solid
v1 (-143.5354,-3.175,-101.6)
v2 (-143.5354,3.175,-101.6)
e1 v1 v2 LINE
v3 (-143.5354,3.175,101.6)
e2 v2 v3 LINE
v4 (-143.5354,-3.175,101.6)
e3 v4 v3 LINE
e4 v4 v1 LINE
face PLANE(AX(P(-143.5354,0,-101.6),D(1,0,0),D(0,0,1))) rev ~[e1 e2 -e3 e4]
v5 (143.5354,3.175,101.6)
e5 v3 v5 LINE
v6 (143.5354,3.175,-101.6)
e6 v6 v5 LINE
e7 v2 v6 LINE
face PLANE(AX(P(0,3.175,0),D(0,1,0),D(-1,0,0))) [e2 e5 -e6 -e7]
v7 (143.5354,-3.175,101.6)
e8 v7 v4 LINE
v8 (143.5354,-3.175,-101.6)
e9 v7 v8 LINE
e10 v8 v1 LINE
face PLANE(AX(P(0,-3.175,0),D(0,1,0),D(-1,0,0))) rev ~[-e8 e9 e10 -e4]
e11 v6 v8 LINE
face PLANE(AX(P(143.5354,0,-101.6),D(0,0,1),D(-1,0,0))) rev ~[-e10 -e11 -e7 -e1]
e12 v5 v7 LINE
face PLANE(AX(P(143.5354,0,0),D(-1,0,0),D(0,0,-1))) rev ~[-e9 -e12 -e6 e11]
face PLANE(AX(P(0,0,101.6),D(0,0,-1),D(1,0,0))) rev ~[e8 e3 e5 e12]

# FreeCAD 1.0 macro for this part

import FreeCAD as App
import Part
import Sketcher

V = App.Vector
Q = App.Units.Quantity


def add_polygon(sketch, points):
    """Adds a closed chain of lines whose ends are joined by coincident constraints."""
    first, n = sketch.GeometryCount, len(points)
    for a, b in zip(points, points[1:] + points[:1]):
        sketch.addGeometry(Part.LineSegment(App.Vector(*a, 0), App.Vector(*b, 0)), False)
    for i in range(n):
        sketch.addConstraint(Sketcher.Constraint("Coincident", first + i, 2, first + (i + 1) % n, 1))

doc = App.newDocument("Part")
body = doc.addObject("PartDesign::Body", "Body")

# Sketch on XZ plane
sketch1 = doc.addObject("Sketcher::SketchObject", "Sketch")
body.addObject(sketch1)
sketch1.AttachmentSupport = (doc.XZ_Plane, [""])
sketch1.MapMode = "FlatFace"
add_polygon(sketch1, [(143.5354, -101.6), (-143.5354, -101.6), (-143.5354, 101.6), (143.5354, 101.6)])  # lines 0-3
sketch1.addConstraint(Sketcher.Constraint("Horizontal", 0))
sketch1.addConstraint(Sketcher.Constraint("Vertical", 1))
sketch1.addConstraint(Sketcher.Constraint("Horizontal", 2))
sketch1.addConstraint(Sketcher.Constraint("Vertical", 3))
sketch1.addConstraint(Sketcher.Constraint("Symmetric", 0, 2, 2, 2, -1, 1))
sketch1.addConstraint(Sketcher.Constraint("DistanceY", 1, 1, 1, 2, Q("8 in")))
sketch1.addConstraint(Sketcher.Constraint("DistanceX", 0, 2, 0, 1, Q("11.302 in")))
pad1 = doc.addObject("PartDesign::Pad", "Pad")
body.addObject(pad1)
pad1.Profile = sketch1
pad1.Length = Q("0.25 in")
pad1.Midplane = True

doc.recompute()
